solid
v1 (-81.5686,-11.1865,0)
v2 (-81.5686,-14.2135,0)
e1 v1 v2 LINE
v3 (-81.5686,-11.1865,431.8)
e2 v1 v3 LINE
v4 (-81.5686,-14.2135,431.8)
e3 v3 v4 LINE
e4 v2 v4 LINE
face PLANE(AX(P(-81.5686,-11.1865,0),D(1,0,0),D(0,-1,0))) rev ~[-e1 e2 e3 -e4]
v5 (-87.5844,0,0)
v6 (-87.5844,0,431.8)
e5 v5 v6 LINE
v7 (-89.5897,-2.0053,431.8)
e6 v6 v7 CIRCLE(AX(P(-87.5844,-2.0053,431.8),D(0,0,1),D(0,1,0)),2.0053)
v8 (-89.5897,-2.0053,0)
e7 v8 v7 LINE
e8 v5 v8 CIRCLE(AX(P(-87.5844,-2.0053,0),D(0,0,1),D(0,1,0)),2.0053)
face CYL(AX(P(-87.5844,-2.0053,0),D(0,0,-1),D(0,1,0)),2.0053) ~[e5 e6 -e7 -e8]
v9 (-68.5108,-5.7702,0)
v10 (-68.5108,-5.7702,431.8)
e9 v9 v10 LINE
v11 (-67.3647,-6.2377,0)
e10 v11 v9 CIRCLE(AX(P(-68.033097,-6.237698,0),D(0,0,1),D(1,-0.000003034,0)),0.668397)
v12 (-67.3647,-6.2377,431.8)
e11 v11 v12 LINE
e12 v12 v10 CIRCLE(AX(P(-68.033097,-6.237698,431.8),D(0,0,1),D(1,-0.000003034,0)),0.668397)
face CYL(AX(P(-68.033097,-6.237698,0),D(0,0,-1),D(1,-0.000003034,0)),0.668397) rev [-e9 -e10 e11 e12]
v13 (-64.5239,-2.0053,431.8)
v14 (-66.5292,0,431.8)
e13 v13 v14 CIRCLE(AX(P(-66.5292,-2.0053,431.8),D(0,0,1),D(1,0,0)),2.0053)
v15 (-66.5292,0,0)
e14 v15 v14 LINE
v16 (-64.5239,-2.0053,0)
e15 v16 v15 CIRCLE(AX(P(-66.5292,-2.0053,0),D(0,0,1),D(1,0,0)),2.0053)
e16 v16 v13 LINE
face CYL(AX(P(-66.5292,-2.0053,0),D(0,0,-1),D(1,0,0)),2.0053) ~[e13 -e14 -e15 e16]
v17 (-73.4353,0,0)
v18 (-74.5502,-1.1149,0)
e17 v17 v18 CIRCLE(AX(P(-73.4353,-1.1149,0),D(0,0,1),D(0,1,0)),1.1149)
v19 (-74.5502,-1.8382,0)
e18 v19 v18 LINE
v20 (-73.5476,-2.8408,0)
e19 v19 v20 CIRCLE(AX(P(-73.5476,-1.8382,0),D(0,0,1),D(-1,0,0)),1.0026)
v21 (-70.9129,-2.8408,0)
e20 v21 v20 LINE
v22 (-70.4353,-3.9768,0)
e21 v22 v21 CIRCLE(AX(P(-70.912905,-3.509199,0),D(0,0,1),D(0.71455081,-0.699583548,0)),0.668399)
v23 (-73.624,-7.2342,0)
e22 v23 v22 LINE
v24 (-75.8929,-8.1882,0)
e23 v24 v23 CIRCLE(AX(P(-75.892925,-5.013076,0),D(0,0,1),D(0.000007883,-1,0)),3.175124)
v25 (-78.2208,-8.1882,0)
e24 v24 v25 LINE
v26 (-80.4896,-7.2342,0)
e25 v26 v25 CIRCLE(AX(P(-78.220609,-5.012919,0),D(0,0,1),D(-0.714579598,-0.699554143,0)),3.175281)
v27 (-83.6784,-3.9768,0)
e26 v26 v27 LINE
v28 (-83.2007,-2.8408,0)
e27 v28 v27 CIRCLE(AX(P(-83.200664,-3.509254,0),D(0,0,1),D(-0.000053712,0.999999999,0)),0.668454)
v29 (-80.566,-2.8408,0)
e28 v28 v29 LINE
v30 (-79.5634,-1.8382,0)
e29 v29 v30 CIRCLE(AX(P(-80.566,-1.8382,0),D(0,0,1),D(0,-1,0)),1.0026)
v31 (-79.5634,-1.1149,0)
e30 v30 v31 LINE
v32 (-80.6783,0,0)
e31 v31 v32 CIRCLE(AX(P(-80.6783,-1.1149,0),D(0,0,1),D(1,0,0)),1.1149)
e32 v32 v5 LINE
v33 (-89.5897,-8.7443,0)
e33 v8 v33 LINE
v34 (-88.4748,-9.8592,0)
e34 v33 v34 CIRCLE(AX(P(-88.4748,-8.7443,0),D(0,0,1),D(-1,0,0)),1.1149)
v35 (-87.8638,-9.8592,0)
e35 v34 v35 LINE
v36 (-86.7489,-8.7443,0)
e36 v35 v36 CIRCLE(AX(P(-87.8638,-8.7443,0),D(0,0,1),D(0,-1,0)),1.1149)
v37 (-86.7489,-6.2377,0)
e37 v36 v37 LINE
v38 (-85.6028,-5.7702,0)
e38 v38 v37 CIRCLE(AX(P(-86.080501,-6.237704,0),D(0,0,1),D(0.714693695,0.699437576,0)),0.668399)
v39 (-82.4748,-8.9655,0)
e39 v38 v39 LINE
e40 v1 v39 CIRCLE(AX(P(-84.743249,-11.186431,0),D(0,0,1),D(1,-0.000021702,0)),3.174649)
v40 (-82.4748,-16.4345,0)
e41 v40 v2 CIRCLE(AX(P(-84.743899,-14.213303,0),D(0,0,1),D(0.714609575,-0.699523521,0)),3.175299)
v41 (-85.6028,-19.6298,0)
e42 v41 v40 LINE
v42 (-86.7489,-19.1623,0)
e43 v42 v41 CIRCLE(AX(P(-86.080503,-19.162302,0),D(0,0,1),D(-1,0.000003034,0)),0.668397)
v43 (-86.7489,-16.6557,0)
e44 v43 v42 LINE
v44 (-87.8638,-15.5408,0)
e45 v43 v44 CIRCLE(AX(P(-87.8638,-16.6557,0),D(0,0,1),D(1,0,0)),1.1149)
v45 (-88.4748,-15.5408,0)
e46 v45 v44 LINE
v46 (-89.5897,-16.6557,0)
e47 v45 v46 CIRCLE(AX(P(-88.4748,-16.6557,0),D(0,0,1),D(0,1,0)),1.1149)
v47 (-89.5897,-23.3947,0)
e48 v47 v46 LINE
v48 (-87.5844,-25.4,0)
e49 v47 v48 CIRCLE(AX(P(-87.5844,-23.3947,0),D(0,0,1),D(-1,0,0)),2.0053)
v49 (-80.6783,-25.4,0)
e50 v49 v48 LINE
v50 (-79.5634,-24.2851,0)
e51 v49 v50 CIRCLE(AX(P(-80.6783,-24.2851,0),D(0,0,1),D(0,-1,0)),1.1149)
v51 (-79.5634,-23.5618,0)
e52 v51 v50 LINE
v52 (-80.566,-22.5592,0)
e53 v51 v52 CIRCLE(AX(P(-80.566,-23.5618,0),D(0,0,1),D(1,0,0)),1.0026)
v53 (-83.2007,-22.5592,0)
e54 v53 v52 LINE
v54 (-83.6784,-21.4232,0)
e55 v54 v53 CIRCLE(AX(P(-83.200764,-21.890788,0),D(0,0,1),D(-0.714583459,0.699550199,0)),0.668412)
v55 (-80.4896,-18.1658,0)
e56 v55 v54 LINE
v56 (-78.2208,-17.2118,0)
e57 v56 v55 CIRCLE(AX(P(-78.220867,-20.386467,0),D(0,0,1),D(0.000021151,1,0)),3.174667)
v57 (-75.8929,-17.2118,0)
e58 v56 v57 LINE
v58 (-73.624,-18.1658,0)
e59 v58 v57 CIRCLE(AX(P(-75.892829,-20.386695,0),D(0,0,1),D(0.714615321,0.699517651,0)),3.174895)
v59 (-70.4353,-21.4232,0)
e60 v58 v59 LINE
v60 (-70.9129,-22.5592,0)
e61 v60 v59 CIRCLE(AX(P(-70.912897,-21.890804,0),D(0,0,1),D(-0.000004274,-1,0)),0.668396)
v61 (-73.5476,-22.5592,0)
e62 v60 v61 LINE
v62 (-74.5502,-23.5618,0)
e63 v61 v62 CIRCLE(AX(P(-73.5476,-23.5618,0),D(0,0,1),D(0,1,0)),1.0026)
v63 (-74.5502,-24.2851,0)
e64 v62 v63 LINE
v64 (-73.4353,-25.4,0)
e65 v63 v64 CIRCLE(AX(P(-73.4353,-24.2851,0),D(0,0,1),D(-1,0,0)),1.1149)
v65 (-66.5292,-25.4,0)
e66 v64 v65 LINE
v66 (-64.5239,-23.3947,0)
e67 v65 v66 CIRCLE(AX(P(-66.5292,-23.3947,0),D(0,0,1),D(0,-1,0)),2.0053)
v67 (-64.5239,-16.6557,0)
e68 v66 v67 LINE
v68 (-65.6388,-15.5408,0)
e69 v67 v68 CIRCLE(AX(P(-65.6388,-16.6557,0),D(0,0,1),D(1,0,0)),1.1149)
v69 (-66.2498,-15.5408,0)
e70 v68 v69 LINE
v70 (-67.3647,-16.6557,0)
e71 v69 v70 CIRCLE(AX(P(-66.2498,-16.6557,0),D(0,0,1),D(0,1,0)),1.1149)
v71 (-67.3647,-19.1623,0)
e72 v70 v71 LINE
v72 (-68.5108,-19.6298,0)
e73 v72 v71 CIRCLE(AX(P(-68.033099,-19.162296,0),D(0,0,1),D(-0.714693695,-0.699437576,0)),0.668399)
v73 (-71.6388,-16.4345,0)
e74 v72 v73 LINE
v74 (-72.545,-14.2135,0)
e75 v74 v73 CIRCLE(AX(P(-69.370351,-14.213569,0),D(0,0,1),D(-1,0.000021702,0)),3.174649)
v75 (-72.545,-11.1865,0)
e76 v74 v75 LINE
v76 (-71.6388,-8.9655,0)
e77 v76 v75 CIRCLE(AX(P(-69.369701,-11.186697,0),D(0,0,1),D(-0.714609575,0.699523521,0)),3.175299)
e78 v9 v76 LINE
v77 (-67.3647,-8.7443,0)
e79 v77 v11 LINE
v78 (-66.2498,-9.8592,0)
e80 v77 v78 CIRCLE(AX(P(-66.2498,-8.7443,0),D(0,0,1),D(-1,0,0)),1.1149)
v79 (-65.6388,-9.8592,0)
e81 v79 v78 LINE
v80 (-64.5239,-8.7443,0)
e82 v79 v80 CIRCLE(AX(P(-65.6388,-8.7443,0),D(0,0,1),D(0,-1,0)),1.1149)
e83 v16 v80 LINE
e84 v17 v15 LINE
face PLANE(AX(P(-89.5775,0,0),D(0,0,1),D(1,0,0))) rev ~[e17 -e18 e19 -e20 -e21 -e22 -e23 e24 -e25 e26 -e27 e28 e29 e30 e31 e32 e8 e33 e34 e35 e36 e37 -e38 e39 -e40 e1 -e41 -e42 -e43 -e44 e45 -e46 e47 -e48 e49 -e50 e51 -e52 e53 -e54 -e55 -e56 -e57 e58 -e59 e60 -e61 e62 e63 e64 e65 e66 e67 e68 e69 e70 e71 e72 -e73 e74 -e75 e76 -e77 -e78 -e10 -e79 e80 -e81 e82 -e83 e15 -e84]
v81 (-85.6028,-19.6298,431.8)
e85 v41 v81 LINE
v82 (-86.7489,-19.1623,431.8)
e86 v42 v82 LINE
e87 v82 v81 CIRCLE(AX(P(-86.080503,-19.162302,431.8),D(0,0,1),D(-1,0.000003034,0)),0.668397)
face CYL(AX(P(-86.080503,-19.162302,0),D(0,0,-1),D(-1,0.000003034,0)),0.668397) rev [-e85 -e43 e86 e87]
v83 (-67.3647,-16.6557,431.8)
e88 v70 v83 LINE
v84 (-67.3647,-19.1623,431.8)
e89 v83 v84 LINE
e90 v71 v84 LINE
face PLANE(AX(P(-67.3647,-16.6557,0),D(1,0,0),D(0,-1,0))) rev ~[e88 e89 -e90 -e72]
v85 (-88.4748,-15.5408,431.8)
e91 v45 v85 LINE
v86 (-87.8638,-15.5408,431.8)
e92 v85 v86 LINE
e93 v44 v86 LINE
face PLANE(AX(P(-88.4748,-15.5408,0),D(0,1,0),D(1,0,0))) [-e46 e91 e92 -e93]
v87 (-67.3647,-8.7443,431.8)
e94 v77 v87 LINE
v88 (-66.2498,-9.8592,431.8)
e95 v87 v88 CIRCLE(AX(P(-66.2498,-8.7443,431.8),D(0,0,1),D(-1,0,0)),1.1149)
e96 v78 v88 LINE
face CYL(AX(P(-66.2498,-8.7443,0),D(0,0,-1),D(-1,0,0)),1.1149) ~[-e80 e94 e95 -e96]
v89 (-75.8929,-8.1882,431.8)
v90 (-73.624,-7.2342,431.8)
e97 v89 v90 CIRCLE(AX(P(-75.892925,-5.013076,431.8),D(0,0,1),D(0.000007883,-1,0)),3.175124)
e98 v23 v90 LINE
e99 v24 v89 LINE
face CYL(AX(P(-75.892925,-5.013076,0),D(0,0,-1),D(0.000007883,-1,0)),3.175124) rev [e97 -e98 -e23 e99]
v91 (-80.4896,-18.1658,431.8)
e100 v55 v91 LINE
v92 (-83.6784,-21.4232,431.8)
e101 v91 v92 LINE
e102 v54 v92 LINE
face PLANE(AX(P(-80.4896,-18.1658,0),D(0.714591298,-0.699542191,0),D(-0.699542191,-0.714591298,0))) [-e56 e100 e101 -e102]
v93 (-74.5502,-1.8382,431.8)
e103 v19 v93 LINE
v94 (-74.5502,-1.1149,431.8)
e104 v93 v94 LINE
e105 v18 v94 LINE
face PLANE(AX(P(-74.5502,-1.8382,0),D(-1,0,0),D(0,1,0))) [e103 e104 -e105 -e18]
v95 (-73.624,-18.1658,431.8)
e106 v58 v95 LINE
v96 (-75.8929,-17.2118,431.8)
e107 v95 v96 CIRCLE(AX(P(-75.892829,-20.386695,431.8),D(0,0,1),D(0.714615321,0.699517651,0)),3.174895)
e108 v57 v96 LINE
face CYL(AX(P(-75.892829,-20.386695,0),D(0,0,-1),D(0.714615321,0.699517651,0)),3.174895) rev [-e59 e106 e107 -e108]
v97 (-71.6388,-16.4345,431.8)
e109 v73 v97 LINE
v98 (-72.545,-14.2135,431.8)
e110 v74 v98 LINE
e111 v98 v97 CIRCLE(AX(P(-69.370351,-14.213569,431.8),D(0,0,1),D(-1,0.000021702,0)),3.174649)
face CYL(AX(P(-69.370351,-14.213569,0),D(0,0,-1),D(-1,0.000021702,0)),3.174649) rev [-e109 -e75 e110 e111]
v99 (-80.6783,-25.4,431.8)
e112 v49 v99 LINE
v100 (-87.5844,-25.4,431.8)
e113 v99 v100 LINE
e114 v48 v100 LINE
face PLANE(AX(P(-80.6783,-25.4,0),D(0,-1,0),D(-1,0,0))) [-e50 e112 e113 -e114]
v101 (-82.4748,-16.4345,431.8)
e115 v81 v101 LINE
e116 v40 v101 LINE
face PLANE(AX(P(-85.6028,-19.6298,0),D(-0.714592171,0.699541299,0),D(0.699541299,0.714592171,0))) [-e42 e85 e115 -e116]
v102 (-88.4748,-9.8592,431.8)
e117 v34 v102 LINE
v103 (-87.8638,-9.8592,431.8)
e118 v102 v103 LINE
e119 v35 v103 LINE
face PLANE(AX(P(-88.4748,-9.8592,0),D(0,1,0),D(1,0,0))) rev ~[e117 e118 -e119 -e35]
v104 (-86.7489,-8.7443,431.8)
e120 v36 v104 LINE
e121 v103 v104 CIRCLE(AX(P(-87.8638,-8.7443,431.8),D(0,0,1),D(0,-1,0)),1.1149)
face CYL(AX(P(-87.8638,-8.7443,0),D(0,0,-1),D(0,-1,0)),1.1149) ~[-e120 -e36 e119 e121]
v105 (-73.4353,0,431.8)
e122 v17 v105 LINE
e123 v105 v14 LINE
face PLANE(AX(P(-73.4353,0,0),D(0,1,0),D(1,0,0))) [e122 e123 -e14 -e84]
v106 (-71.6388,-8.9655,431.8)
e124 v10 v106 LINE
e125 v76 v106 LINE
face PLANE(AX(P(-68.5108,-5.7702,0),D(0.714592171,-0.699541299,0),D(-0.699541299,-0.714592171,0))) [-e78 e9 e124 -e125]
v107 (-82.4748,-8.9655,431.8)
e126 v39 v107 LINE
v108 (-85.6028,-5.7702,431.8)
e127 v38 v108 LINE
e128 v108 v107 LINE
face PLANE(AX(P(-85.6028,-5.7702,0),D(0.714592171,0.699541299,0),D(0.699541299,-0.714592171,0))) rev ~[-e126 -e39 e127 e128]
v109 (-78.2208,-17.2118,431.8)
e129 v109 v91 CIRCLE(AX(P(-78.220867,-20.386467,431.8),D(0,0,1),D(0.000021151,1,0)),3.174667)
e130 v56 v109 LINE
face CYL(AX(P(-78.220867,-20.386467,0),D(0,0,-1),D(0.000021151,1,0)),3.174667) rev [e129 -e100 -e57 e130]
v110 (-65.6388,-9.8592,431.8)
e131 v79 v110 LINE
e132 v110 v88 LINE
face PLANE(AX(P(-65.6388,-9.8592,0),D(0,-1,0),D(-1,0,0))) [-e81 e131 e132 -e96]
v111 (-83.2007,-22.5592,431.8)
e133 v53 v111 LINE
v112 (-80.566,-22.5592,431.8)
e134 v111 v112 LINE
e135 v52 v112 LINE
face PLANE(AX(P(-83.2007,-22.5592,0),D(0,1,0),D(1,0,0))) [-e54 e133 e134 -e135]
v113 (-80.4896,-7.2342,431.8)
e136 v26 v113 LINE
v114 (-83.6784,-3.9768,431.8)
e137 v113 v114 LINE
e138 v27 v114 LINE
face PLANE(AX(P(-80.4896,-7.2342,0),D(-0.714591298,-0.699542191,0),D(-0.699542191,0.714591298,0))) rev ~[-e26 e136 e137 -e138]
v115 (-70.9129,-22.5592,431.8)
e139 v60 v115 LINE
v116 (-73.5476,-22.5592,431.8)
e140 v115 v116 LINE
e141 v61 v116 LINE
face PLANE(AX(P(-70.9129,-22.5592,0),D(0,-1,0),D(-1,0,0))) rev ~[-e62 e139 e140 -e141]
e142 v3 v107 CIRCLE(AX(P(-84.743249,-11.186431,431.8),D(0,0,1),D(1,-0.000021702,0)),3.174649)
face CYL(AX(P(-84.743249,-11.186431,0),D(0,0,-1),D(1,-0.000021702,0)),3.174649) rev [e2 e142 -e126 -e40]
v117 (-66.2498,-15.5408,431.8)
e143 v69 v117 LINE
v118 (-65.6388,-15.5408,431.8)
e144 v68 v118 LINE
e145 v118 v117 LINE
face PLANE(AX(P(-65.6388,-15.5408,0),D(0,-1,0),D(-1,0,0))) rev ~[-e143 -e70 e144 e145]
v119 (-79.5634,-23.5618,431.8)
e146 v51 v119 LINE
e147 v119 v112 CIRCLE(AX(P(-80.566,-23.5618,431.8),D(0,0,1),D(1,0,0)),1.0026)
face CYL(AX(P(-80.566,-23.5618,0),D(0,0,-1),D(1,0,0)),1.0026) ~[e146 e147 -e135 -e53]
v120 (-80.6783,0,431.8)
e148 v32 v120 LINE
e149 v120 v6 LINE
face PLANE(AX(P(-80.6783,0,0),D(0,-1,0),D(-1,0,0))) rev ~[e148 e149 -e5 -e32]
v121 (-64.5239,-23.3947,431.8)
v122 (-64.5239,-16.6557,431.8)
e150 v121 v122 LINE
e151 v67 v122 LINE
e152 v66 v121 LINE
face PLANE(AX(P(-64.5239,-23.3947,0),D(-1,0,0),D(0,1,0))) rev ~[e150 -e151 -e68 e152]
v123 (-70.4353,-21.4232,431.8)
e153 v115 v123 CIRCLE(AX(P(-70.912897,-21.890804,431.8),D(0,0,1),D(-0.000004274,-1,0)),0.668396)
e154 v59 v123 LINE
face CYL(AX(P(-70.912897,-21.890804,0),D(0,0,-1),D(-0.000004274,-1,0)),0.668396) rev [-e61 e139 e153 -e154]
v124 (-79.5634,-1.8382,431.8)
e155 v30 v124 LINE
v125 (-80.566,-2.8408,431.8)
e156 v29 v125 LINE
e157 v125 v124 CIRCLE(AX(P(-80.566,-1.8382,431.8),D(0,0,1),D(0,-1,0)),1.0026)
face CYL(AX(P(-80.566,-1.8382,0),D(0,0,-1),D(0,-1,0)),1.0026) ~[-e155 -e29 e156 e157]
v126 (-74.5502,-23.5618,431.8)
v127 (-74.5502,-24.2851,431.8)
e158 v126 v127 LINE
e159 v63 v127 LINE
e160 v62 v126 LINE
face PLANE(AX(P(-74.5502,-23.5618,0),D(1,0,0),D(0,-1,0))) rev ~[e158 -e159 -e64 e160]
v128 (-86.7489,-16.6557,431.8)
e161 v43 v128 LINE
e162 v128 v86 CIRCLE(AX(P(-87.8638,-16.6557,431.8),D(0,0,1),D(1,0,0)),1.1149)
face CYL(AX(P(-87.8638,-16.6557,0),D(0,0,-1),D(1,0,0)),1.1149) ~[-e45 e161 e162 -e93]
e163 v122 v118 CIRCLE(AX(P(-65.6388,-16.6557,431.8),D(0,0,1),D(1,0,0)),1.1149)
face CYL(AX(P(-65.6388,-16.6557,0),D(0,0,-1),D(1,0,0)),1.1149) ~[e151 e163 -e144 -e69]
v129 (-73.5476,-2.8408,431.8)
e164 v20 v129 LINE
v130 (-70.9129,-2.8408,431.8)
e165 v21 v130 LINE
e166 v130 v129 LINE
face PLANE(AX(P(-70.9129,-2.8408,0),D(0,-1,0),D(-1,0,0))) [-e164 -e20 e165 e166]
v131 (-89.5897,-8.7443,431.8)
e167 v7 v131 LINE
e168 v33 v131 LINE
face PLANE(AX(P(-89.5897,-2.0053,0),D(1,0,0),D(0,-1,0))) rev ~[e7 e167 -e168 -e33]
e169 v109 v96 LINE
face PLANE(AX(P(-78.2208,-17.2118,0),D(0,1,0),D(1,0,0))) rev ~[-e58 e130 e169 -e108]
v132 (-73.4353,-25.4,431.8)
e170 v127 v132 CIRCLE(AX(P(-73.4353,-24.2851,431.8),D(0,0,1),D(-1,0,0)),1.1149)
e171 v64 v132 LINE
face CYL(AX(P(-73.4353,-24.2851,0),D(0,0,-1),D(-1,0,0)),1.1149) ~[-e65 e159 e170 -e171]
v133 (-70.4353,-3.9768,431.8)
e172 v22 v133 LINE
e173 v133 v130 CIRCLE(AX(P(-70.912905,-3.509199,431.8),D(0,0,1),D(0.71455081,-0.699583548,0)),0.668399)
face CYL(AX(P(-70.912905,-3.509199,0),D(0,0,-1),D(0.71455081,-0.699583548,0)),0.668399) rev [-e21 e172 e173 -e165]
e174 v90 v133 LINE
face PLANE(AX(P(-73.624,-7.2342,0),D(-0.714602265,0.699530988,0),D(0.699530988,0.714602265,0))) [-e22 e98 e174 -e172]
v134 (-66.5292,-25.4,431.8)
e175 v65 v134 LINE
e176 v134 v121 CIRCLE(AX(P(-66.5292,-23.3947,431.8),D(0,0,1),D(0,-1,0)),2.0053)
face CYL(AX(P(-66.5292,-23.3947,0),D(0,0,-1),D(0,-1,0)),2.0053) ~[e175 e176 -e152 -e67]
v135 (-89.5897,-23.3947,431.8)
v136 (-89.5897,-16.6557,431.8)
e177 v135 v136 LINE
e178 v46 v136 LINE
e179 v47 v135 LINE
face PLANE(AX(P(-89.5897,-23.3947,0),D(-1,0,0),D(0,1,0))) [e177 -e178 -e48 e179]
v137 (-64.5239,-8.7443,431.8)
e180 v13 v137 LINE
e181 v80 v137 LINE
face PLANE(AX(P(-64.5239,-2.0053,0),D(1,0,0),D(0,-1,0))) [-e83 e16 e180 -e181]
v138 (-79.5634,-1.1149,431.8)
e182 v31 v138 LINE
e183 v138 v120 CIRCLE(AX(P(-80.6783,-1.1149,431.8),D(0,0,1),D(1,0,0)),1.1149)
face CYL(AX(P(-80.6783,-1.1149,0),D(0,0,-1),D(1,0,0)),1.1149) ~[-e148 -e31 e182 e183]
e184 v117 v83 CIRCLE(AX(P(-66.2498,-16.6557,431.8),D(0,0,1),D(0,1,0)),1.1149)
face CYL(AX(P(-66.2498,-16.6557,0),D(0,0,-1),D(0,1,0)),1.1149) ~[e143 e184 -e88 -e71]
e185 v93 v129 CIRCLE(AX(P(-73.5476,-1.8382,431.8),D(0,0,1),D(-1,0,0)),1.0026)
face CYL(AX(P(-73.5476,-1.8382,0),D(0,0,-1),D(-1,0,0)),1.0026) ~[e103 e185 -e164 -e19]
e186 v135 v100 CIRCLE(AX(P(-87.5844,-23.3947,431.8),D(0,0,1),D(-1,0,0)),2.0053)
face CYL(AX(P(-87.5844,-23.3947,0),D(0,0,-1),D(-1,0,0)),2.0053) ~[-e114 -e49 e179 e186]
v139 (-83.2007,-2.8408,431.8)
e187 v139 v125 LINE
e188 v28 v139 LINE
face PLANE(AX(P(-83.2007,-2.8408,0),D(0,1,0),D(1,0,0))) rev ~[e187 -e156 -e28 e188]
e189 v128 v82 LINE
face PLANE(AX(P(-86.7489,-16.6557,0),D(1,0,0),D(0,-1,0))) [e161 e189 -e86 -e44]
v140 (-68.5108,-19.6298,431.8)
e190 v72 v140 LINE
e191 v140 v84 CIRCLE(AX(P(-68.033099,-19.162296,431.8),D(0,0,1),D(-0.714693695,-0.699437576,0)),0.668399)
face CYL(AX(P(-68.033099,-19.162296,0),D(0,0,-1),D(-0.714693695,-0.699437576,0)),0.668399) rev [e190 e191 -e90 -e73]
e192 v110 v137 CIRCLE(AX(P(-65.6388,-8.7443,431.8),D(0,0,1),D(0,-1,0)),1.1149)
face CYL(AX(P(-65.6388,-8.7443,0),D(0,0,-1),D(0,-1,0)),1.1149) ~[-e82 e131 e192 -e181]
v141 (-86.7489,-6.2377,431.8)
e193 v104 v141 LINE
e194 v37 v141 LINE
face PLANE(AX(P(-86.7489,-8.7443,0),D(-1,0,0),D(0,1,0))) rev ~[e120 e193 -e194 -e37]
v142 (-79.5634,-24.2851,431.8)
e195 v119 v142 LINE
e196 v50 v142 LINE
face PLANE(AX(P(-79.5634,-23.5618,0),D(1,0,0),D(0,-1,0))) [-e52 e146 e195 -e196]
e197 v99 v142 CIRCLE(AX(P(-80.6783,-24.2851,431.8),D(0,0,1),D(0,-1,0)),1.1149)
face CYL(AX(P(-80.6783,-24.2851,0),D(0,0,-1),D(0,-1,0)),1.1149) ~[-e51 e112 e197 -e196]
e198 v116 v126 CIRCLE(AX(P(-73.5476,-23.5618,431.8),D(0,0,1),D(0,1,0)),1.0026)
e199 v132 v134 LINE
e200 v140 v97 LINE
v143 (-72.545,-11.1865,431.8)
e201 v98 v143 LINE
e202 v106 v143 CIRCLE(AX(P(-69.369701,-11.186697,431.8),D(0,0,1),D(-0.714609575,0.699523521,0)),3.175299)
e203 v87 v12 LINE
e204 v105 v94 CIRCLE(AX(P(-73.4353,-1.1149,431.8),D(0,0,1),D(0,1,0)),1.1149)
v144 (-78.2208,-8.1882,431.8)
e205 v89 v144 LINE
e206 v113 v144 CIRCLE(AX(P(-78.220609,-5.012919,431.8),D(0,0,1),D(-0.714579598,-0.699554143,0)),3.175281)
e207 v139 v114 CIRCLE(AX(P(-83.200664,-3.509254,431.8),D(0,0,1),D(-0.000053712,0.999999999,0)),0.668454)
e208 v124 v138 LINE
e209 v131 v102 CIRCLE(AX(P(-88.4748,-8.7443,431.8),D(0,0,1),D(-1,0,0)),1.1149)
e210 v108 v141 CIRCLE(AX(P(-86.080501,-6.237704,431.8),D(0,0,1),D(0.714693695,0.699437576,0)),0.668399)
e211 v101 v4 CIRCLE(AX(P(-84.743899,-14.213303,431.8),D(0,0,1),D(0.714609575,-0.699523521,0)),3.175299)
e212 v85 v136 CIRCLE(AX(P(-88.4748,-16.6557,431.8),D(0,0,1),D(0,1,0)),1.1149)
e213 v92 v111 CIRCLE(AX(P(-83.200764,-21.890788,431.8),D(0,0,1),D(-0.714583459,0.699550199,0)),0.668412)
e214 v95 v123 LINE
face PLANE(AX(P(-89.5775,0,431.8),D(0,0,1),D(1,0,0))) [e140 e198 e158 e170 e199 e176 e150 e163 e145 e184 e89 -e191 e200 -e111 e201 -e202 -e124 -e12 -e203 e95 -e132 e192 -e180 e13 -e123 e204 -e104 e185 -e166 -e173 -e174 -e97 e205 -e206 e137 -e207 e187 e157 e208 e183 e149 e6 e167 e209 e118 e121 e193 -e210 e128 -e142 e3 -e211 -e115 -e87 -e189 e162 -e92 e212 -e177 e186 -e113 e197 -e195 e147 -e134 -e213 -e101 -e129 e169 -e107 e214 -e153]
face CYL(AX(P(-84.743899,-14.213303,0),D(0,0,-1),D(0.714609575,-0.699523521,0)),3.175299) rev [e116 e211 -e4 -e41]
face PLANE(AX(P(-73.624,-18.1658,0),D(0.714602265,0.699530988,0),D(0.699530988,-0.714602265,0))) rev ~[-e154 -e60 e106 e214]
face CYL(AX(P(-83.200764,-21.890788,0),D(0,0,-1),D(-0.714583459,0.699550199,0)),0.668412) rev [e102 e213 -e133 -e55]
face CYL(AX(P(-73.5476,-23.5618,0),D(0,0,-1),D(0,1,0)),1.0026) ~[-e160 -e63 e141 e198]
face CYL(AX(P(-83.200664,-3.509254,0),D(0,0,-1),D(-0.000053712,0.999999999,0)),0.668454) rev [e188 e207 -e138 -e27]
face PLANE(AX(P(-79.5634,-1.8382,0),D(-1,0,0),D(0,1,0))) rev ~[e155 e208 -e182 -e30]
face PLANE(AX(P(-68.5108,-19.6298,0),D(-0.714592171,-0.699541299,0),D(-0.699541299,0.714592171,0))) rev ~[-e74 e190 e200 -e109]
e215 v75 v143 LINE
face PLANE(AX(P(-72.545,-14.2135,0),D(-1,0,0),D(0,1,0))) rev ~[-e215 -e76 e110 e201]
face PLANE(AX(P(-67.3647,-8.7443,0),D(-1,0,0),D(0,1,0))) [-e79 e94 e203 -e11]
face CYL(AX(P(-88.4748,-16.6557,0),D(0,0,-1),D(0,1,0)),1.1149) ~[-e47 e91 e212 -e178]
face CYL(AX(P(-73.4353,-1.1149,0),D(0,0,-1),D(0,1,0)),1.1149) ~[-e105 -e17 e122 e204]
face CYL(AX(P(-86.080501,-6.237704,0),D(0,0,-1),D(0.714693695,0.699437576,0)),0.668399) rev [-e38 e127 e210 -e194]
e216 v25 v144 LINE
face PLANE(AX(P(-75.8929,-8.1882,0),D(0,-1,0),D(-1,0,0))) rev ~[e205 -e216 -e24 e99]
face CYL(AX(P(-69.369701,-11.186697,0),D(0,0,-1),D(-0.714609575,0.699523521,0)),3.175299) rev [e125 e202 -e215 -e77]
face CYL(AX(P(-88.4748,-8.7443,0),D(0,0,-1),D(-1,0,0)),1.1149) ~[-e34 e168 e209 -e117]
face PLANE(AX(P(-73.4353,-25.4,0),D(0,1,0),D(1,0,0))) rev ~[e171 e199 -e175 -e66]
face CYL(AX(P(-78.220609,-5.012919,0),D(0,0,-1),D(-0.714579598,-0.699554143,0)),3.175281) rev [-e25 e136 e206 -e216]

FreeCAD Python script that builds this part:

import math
import FreeCAD as App
import Part
import Sketcher
Q = App.Units.Quantity

doc = App.newDocument("Part")
body = doc.addObject("PartDesign::Body", "Body")

# Sketch on XY plane
sketch1 = doc.addObject("Sketcher::SketchObject", "Sketch")
body.addObject(sketch1)
sketch1.AttachmentSupport = (doc.XY_Plane, [""])
sketch1.MapMode = "FlatFace"
sketch1.addGeometry(Part.ArcOfCircle(Part.Circle(App.Vector(-70.9, -3.5, 0), App.Vector(0, 0, 1), 0.7), math.radians(-44), math.radians(90)), False)
sketch1.addGeometry(Part.LineSegment(App.Vector(-70.4, -4, 0), App.Vector(-73.6, -7.2, 0)), False)
sketch1.addGeometry(Part.ArcOfCircle(Part.Circle(App.Vector(-75.9, -5, 0), App.Vector(0, 0, 1), 3.2), math.radians(-90), math.radians(-44)), False)
sketch1.addGeometry(Part.LineSegment(App.Vector(-75.9, -8.2, 0), App.Vector(-78.2, -8.2, 0)), False)
sketch1.addGeometry(Part.ArcOfCircle(Part.Circle(App.Vector(-78.2, -5, 0), App.Vector(0, 0, 1), 3.2), math.radians(-136), math.radians(-90)), False)
sketch1.addGeometry(Part.LineSegment(App.Vector(-80.5, -7.2, 0), App.Vector(-83.7, -4, 0)), False)
sketch1.addGeometry(Part.ArcOfCircle(Part.Circle(App.Vector(-83.2, -3.5, 0), App.Vector(0, 0, 1), 0.7), math.radians(90), math.radians(224)), False)
sketch1.addGeometry(Part.LineSegment(App.Vector(-83.2, -2.8, 0), App.Vector(-80.6, -2.8, 0)), False)
sketch1.addGeometry(Part.ArcOfCircle(Part.Circle(App.Vector(-80.6, -1.8, 0), App.Vector(0, 0, 1), 1), math.radians(-90), math.radians(0)), False)
sketch1.addGeometry(Part.LineSegment(App.Vector(-79.6, -1.8, 0), App.Vector(-79.6, -1.1, 0)), False)
sketch1.addGeometry(Part.ArcOfCircle(Part.Circle(App.Vector(-80.7, -1.1, 0), App.Vector(0, 0, 1), 1.1), math.radians(0), math.radians(90)), False)
sketch1.addGeometry(Part.LineSegment(App.Vector(-80.7, 0, 0), App.Vector(-87.6, 0, 0)), False)
sketch1.addGeometry(Part.ArcOfCircle(Part.Circle(App.Vector(-87.6, -2, 0), App.Vector(0, 0, 1), 2), math.radians(90), math.radians(180)), False)
sketch1.addGeometry(Part.LineSegment(App.Vector(-89.6, -2, 0), App.Vector(-89.6, -8.7, 0)), False)
sketch1.addGeometry(Part.ArcOfCircle(Part.Circle(App.Vector(-88.5, -8.7, 0), App.Vector(0, 0, 1), 1.1), math.radians(180), math.radians(270)), False)
sketch1.addGeometry(Part.LineSegment(App.Vector(-88.5, -9.9, 0), App.Vector(-87.9, -9.9, 0)), False)
sketch1.addGeometry(Part.ArcOfCircle(Part.Circle(App.Vector(-87.9, -8.7, 0), App.Vector(0, 0, 1), 1.1), math.radians(-90), math.radians(0)), False)
sketch1.addGeometry(Part.LineSegment(App.Vector(-86.7, -8.7, 0), App.Vector(-86.7, -6.2, 0)), False)
sketch1.addGeometry(Part.ArcOfCircle(Part.Circle(App.Vector(-86.1, -6.2, 0), App.Vector(0, 0, 1), 0.7), math.radians(44), math.radians(180)), False)
sketch1.addGeometry(Part.LineSegment(App.Vector(-85.6, -5.8, 0), App.Vector(-82.5, -9, 0)), False)
sketch1.addGeometry(Part.ArcOfCircle(Part.Circle(App.Vector(-84.7, -11.2, 0), App.Vector(0, 0, 1), 3.2), math.radians(0), math.radians(44)), False)
sketch1.addGeometry(Part.LineSegment(App.Vector(-81.6, -11.2, 0), App.Vector(-81.6, -14.2, 0)), False)
sketch1.addGeometry(Part.ArcOfCircle(Part.Circle(App.Vector(-84.7, -14.2, 0), App.Vector(0, 0, 1), 3.2), math.radians(-44), math.radians(0)), False)
sketch1.addGeometry(Part.LineSegment(App.Vector(-82.5, -16.4, 0), App.Vector(-85.6, -19.6, 0)), False)
sketch1.addGeometry(Part.ArcOfCircle(Part.Circle(App.Vector(-86.1, -19.2, 0), App.Vector(0, 0, 1), 0.7), math.radians(180), math.radians(316)), False)
sketch1.addGeometry(Part.LineSegment(App.Vector(-86.7, -19.2, 0), App.Vector(-86.7, -16.7, 0)), False)
sketch1.addGeometry(Part.ArcOfCircle(Part.Circle(App.Vector(-87.9, -16.7, 0), App.Vector(0, 0, 1), 1.1), math.radians(0), math.radians(90)), False)
sketch1.addGeometry(Part.LineSegment(App.Vector(-87.9, -15.5, 0), App.Vector(-88.5, -15.5, 0)), False)
sketch1.addGeometry(Part.ArcOfCircle(Part.Circle(App.Vector(-88.5, -16.7, 0), App.Vector(0, 0, 1), 1.1), math.radians(90), math.radians(180)), False)
sketch1.addGeometry(Part.LineSegment(App.Vector(-89.6, -16.7, 0), App.Vector(-89.6, -23.4, 0)), False)
sketch1.addGeometry(Part.ArcOfCircle(Part.Circle(App.Vector(-87.6, -23.4, 0), App.Vector(0, 0, 1), 2), math.radians(180), math.radians(270)), False)
sketch1.addGeometry(Part.LineSegment(App.Vector(-87.6, -25.4, 0), App.Vector(-80.7, -25.4, 0)), False)
sketch1.addGeometry(Part.ArcOfCircle(Part.Circle(App.Vector(-80.7, -24.3, 0), App.Vector(0, 0, 1), 1.1), math.radians(-90), math.radians(0)), False)
sketch1.addGeometry(Part.LineSegment(App.Vector(-79.6, -24.3, 0), App.Vector(-79.6, -23.6, 0)), False)
sketch1.addGeometry(Part.ArcOfCircle(Part.Circle(App.Vector(-80.6, -23.6, 0), App.Vector(0, 0, 1), 1), math.radians(0), math.radians(90)), False)
sketch1.addGeometry(Part.LineSegment(App.Vector(-80.6, -22.6, 0), App.Vector(-83.2, -22.6, 0)), False)
sketch1.addGeometry(Part.ArcOfCircle(Part.Circle(App.Vector(-83.2, -21.9, 0), App.Vector(0, 0, 1), 0.7), math.radians(136), math.radians(270)), False)
sketch1.addGeometry(Part.LineSegment(App.Vector(-83.7, -21.4, 0), App.Vector(-80.5, -18.2, 0)), False)
sketch1.addGeometry(Part.ArcOfCircle(Part.Circle(App.Vector(-78.2, -20.4, 0), App.Vector(0, 0, 1), 3.2), math.radians(90), math.radians(136)), False)
sketch1.addGeometry(Part.LineSegment(App.Vector(-78.2, -17.2, 0), App.Vector(-75.9, -17.2, 0)), False)
sketch1.addGeometry(Part.ArcOfCircle(Part.Circle(App.Vector(-75.9, -20.4, 0), App.Vector(0, 0, 1), 3.2), math.radians(44), math.radians(90)), False)
sketch1.addGeometry(Part.LineSegment(App.Vector(-73.6, -18.2, 0), App.Vector(-70.4, -21.4, 0)), False)
sketch1.addGeometry(Part.ArcOfCircle(Part.Circle(App.Vector(-70.9, -21.9, 0), App.Vector(0, 0, 1), 0.7), math.radians(-90), math.radians(44)), False)
sketch1.addGeometry(Part.LineSegment(App.Vector(-70.9, -22.6, 0), App.Vector(-73.5, -22.6, 0)), False)
sketch1.addGeometry(Part.ArcOfCircle(Part.Circle(App.Vector(-73.5, -23.6, 0), App.Vector(0, 0, 1), 1), math.radians(90), math.radians(180)), False)
sketch1.addGeometry(Part.LineSegment(App.Vector(-74.6, -23.6, 0), App.Vector(-74.6, -24.3, 0)), False)
sketch1.addGeometry(Part.ArcOfCircle(Part.Circle(App.Vector(-73.4, -24.3, 0), App.Vector(0, 0, 1), 1.1), math.radians(180), math.radians(270)), False)
sketch1.addGeometry(Part.LineSegment(App.Vector(-73.4, -25.4, 0), App.Vector(-66.5, -25.4, 0)), False)
sketch1.addGeometry(Part.ArcOfCircle(Part.Circle(App.Vector(-66.5, -23.4, 0), App.Vector(0, 0, 1), 2), math.radians(-90), math.radians(0)), False)
sketch1.addGeometry(Part.LineSegment(App.Vector(-64.5, -23.4, 0), App.Vector(-64.5, -16.7, 0)), False)
sketch1.addGeometry(Part.ArcOfCircle(Part.Circle(App.Vector(-65.6, -16.7, 0), App.Vector(0, 0, 1), 1.1), math.radians(0), math.radians(90)), False)
sketch1.addGeometry(Part.LineSegment(App.Vector(-65.6, -15.5, 0), App.Vector(-66.2, -15.5, 0)), False)
sketch1.addGeometry(Part.ArcOfCircle(Part.Circle(App.Vector(-66.2, -16.7, 0), App.Vector(0, 0, 1), 1.1), math.radians(90), math.radians(180)), False)
sketch1.addGeometry(Part.LineSegment(App.Vector(-67.4, -16.7, 0), App.Vector(-67.4, -19.2, 0)), False)
sketch1.addGeometry(Part.ArcOfCircle(Part.Circle(App.Vector(-68, -19.2, 0), App.Vector(0, 0, 1), 0.7), math.radians(-136), math.radians(0)), False)
sketch1.addGeometry(Part.LineSegment(App.Vector(-68.5, -19.6, 0), App.Vector(-71.6, -16.4, 0)), False)
sketch1.addGeometry(Part.ArcOfCircle(Part.Circle(App.Vector(-69.4, -14.2, 0), App.Vector(0, 0, 1), 3.2), math.radians(180), math.radians(224)), False)
sketch1.addGeometry(Part.LineSegment(App.Vector(-72.5, -14.2, 0), App.Vector(-72.5, -11.2, 0)), False)
sketch1.addGeometry(Part.ArcOfCircle(Part.Circle(App.Vector(-69.4, -11.2, 0), App.Vector(0, 0, 1), 3.2), math.radians(136), math.radians(180)), False)
sketch1.addGeometry(Part.LineSegment(App.Vector(-71.6, -9, 0), App.Vector(-68.5, -5.8, 0)), False)
sketch1.addGeometry(Part.ArcOfCircle(Part.Circle(App.Vector(-68, -6.2, 0), App.Vector(0, 0, 1), 0.7), math.radians(0), math.radians(136)), False)
sketch1.addGeometry(Part.LineSegment(App.Vector(-67.4, -6.2, 0), App.Vector(-67.4, -8.7, 0)), False)
sketch1.addGeometry(Part.ArcOfCircle(Part.Circle(App.Vector(-66.2, -8.7, 0), App.Vector(0, 0, 1), 1.1), math.radians(180), math.radians(270)), False)
sketch1.addGeometry(Part.LineSegment(App.Vector(-66.2, -9.9, 0), App.Vector(-65.6, -9.9, 0)), False)
sketch1.addGeometry(Part.ArcOfCircle(Part.Circle(App.Vector(-65.6, -8.7, 0), App.Vector(0, 0, 1), 1.1), math.radians(-90), math.radians(0)), False)
sketch1.addGeometry(Part.LineSegment(App.Vector(-64.5, -8.7, 0), App.Vector(-64.5, -2, 0)), False)
sketch1.addGeometry(Part.ArcOfCircle(Part.Circle(App.Vector(-66.5, -2, 0), App.Vector(0, 0, 1), 2), math.radians(0), math.radians(90)), False)
sketch1.addGeometry(Part.LineSegment(App.Vector(-66.5, 0, 0), App.Vector(-73.4, 0, 0)), False)
sketch1.addGeometry(Part.ArcOfCircle(Part.Circle(App.Vector(-73.4, -1.1, 0), App.Vector(0, 0, 1), 1.1), math.radians(90), math.radians(180)), False)
sketch1.addGeometry(Part.LineSegment(App.Vector(-74.6, -1.1, 0), App.Vector(-74.6, -1.8, 0)), False)
sketch1.addGeometry(Part.ArcOfCircle(Part.Circle(App.Vector(-73.5, -1.8, 0), App.Vector(0, 0, 1), 1), math.radians(180), math.radians(270)), False)
sketch1.addGeometry(Part.LineSegment(App.Vector(-73.5, -2.8, 0), App.Vector(-70.9, -2.8, 0)), False)
sketch1.addConstraint(Sketcher.Constraint("Tangent", 0, 1, 1, 1))
sketch1.addConstraint(Sketcher.Constraint("Tangent", 1, 2, 2, 2))
sketch1.addConstraint(Sketcher.Constraint("Tangent", 2, 1, 3, 1))
sketch1.addConstraint(Sketcher.Constraint("Tangent", 3, 2, 4, 2))
sketch1.addConstraint(Sketcher.Constraint("Tangent", 4, 1, 5, 1))
sketch1.addConstraint(Sketcher.Constraint("Tangent", 5, 2, 6, 2))
sketch1.addConstraint(Sketcher.Constraint("Tangent", 6, 1, 7, 1))
sketch1.addConstraint(Sketcher.Constraint("Tangent", 7, 2, 8, 1))
sketch1.addConstraint(Sketcher.Constraint("Tangent", 8, 2, 9, 1))
sketch1.addConstraint(Sketcher.Constraint("Tangent", 9, 2, 10, 1))
sketch1.addConstraint(Sketcher.Constraint("Tangent", 10, 2, 11, 1))
sketch1.addConstraint(Sketcher.Constraint("Tangent", 11, 2, 12, 1))
sketch1.addConstraint(Sketcher.Constraint("Tangent", 12, 2, 13, 1))
sketch1.addConstraint(Sketcher.Constraint("Tangent", 13, 2, 14, 1))
sketch1.addConstraint(Sketcher.Constraint("Tangent", 14, 2, 15, 1))
sketch1.addConstraint(Sketcher.Constraint("Tangent", 15, 2, 16, 1))
sketch1.addConstraint(Sketcher.Constraint("Tangent", 16, 2, 17, 1))
sketch1.addConstraint(Sketcher.Constraint("Tangent", 17, 2, 18, 2))
sketch1.addConstraint(Sketcher.Constraint("Tangent", 18, 1, 19, 1))
sketch1.addConstraint(Sketcher.Constraint("Tangent", 19, 2, 20, 2))
sketch1.addConstraint(Sketcher.Constraint("Tangent", 20, 1, 21, 1))
sketch1.addConstraint(Sketcher.Constraint("Tangent", 21, 2, 22, 2))
sketch1.addConstraint(Sketcher.Constraint("Tangent", 22, 1, 23, 1))
sketch1.addConstraint(Sketcher.Constraint("Tangent", 23, 2, 24, 2))
sketch1.addConstraint(Sketcher.Constraint("Tangent", 24, 1, 25, 1))
sketch1.addConstraint(Sketcher.Constraint("Tangent", 25, 2, 26, 1))
sketch1.addConstraint(Sketcher.Constraint("Tangent", 26, 2, 27, 1))
sketch1.addConstraint(Sketcher.Constraint("Tangent", 27, 2, 28, 1))
sketch1.addConstraint(Sketcher.Constraint("Tangent", 28, 2, 29, 1))
sketch1.addConstraint(Sketcher.Constraint("Tangent", 29, 2, 30, 1))
sketch1.addConstraint(Sketcher.Constraint("Tangent", 30, 2, 31, 1))
sketch1.addConstraint(Sketcher.Constraint("Tangent", 31, 2, 32, 1))
sketch1.addConstraint(Sketcher.Constraint("Tangent", 32, 2, 33, 1))
sketch1.addConstraint(Sketcher.Constraint("Tangent", 33, 2, 34, 1))
sketch1.addConstraint(Sketcher.Constraint("Tangent", 34, 2, 35, 1))
sketch1.addConstraint(Sketcher.Constraint("Tangent", 35, 2, 36, 2))
sketch1.addConstraint(Sketcher.Constraint("Tangent", 36, 1, 37, 1))
sketch1.addConstraint(Sketcher.Constraint("Tangent", 37, 2, 38, 2))
sketch1.addConstraint(Sketcher.Constraint("Tangent", 38, 1, 39, 1))
sketch1.addConstraint(Sketcher.Constraint("Tangent", 39, 2, 40, 2))
sketch1.addConstraint(Sketcher.Constraint("Tangent", 40, 1, 41, 1))
sketch1.addConstraint(Sketcher.Constraint("Tangent", 41, 2, 42, 2))
sketch1.addConstraint(Sketcher.Constraint("Tangent", 42, 1, 43, 1))
sketch1.addConstraint(Sketcher.Constraint("Tangent", 43, 2, 44, 1))
sketch1.addConstraint(Sketcher.Constraint("Tangent", 44, 2, 45, 1))
sketch1.addConstraint(Sketcher.Constraint("Tangent", 45, 2, 46, 1))
sketch1.addConstraint(Sketcher.Constraint("Tangent", 46, 2, 47, 1))
sketch1.addConstraint(Sketcher.Constraint("Tangent", 47, 2, 48, 1))
sketch1.addConstraint(Sketcher.Constraint("Tangent", 48, 2, 49, 1))
sketch1.addConstraint(Sketcher.Constraint("Tangent", 49, 2, 50, 1))
sketch1.addConstraint(Sketcher.Constraint("Tangent", 50, 2, 51, 1))
sketch1.addConstraint(Sketcher.Constraint("Tangent", 51, 2, 52, 1))
sketch1.addConstraint(Sketcher.Constraint("Tangent", 52, 2, 53, 1))
sketch1.addConstraint(Sketcher.Constraint("Tangent", 53, 2, 54, 2))
sketch1.addConstraint(Sketcher.Constraint("Tangent", 54, 1, 55, 1))
sketch1.addConstraint(Sketcher.Constraint("Tangent", 55, 2, 56, 2))
sketch1.addConstraint(Sketcher.Constraint("Tangent", 56, 1, 57, 1))
sketch1.addConstraint(Sketcher.Constraint("Tangent", 57, 2, 58, 2))
sketch1.addConstraint(Sketcher.Constraint("Tangent", 58, 1, 59, 1))
sketch1.addConstraint(Sketcher.Constraint("Tangent", 59, 2, 60, 2))
sketch1.addConstraint(Sketcher.Constraint("Tangent", 60, 1, 61, 1))
sketch1.addConstraint(Sketcher.Constraint("Tangent", 61, 2, 62, 1))
sketch1.addConstraint(Sketcher.Constraint("Tangent", 62, 2, 63, 1))
sketch1.addConstraint(Sketcher.Constraint("Tangent", 63, 2, 64, 1))
sketch1.addConstraint(Sketcher.Constraint("Tangent", 64, 2, 65, 1))
sketch1.addConstraint(Sketcher.Constraint("Tangent", 65, 2, 66, 1))
sketch1.addConstraint(Sketcher.Constraint("Tangent", 66, 2, 67, 1))
sketch1.addConstraint(Sketcher.Constraint("Tangent", 67, 2, 68, 1))
sketch1.addConstraint(Sketcher.Constraint("Tangent", 68, 2, 69, 1))
sketch1.addConstraint(Sketcher.Constraint("Tangent", 69, 2, 70, 1))
sketch1.addConstraint(Sketcher.Constraint("Tangent", 70, 2, 71, 1))
sketch1.addConstraint(Sketcher.Constraint("Tangent", 71, 2, 0, 2))
sketch1.addConstraint(Sketcher.Constraint("Horizontal", 3))
sketch1.addConstraint(Sketcher.Constraint("Horizontal", 7))
sketch1.addConstraint(Sketcher.Constraint("Vertical", 9))
sketch1.addConstraint(Sketcher.Constraint("Horizontal", 11))
sketch1.addConstraint(Sketcher.Constraint("Vertical", 13))
sketch1.addConstraint(Sketcher.Constraint("Horizontal", 15))
sketch1.addConstraint(Sketcher.Constraint("Vertical", 17))
sketch1.addConstraint(Sketcher.Constraint("Vertical", 21))
sketch1.addConstraint(Sketcher.Constraint("Vertical", 25))
sketch1.addConstraint(Sketcher.Constraint("Horizontal", 27))
sketch1.addConstraint(Sketcher.Constraint("Vertical", 29))
sketch1.addConstraint(Sketcher.Constraint("Horizontal", 31))
sketch1.addConstraint(Sketcher.Constraint("Vertical", 33))
sketch1.addConstraint(Sketcher.Constraint("Horizontal", 35))
sketch1.addConstraint(Sketcher.Constraint("Horizontal", 39))
sketch1.addConstraint(Sketcher.Constraint("Horizontal", 43))
sketch1.addConstraint(Sketcher.Constraint("Vertical", 45))
sketch1.addConstraint(Sketcher.Constraint("Horizontal", 47))
sketch1.addConstraint(Sketcher.Constraint("Vertical", 49))
sketch1.addConstraint(Sketcher.Constraint("Horizontal", 51))
sketch1.addConstraint(Sketcher.Constraint("Vertical", 53))
sketch1.addConstraint(Sketcher.Constraint("Vertical", 57))
sketch1.addConstraint(Sketcher.Constraint("Vertical", 61))
sketch1.addConstraint(Sketcher.Constraint("Horizontal", 63))
sketch1.addConstraint(Sketcher.Constraint("Vertical", 65))
sketch1.addConstraint(Sketcher.Constraint("Horizontal", 67))
sketch1.addConstraint(Sketcher.Constraint("Vertical", 69))
sketch1.addConstraint(Sketcher.Constraint("Horizontal", 71))
sketch1.addConstraint(Sketcher.Constraint("Equal", 2, 4))
sketch1.addConstraint(Sketcher.Constraint("Equal", 0, 6))
sketch1.addConstraint(Sketcher.Constraint("Equal", 10, 14))
sketch1.addConstraint(Sketcher.Constraint("Equal", 14, 16))
sketch1.addConstraint(Sketcher.Constraint("Equal", 6, 18))
sketch1.addConstraint(Sketcher.Constraint("Equal", 4, 20))
sketch1.addConstraint(Sketcher.Constraint("Equal", 20, 22))
sketch1.addConstraint(Sketcher.Constraint("Equal", 18, 24))
sketch1.addConstraint(Sketcher.Constraint("Equal", 16, 26))
sketch1.addConstraint(Sketcher.Constraint("Equal", 26, 28))
sketch1.addConstraint(Sketcher.Constraint("Equal", 12, 30))
sketch1.addConstraint(Sketcher.Constraint("Equal", 28, 32))
sketch1.addConstraint(Sketcher.Constraint("Equal", 8, 34))
sketch1.addConstraint(Sketcher.Constraint("Equal", 24, 36))
sketch1.addConstraint(Sketcher.Constraint("Equal", 22, 38))
sketch1.addConstraint(Sketcher.Constraint("Equal", 38, 40))
sketch1.addConstraint(Sketcher.Constraint("Equal", 36, 42))
sketch1.addConstraint(Sketcher.Constraint("Equal", 34, 44))
sketch1.addConstraint(Sketcher.Constraint("Equal", 32, 46))
sketch1.addConstraint(Sketcher.Constraint("Equal", 30, 48))
sketch1.addConstraint(Sketcher.Constraint("Equal", 46, 50))
sketch1.addConstraint(Sketcher.Constraint("Equal", 50, 52))
sketch1.addConstraint(Sketcher.Constraint("Equal", 42, 54))
sketch1.addConstraint(Sketcher.Constraint("Equal", 40, 56))
sketch1.addConstraint(Sketcher.Constraint("Equal", 56, 58))
sketch1.addConstraint(Sketcher.Constraint("Equal", 54, 60))
sketch1.addConstraint(Sketcher.Constraint("Equal", 52, 62))
sketch1.addConstraint(Sketcher.Constraint("Equal", 62, 64))
sketch1.addConstraint(Sketcher.Constraint("Equal", 48, 66))
sketch1.addConstraint(Sketcher.Constraint("Equal", 64, 68))
sketch1.addConstraint(Sketcher.Constraint("Equal", 44, 70))
sketch1.addConstraint(Sketcher.Constraint("PointOnObject", 10, 2, -1))
sketch1.addConstraint(Sketcher.Constraint("PointOnObject", 66, 2, -1))
sketch1.addConstraint(Sketcher.Constraint("Parallel", 5, 19))
sketch1.addConstraint(Sketcher.Constraint("Parallel", 1, 23))
sketch1.addConstraint(Sketcher.Constraint("Parallel", 23, 37))
sketch1.addConstraint(Sketcher.Constraint("Parallel", 19, 41))
sketch1.addConstraint(Sketcher.Constraint("Parallel", 41, 55))
sketch1.addConstraint(Sketcher.Constraint("Parallel", 37, 59))
sketch1.addConstraint(Sketcher.Constraint("Horizontal", 0, 3, 6, 3))
sketch1.addConstraint(Sketcher.Constraint("Horizontal", 36, 3, 42, 3))
sketch1.addConstraint(Sketcher.Constraint("Horizontal", 32, 3, 46, 3))
sketch1.addConstraint(Sketcher.Constraint("Horizontal", 28, 3, 50, 3))
sketch1.addConstraint(Sketcher.Constraint("Horizontal", 24, 3, 54, 3))
sketch1.addConstraint(Sketcher.Constraint("Horizontal", 22, 3, 56, 3))
sketch1.addConstraint(Sketcher.Constraint("Horizontal", 20, 3, 58, 3))
sketch1.addConstraint(Sketcher.Constraint("Horizontal", 18, 3, 60, 3))
sketch1.addConstraint(Sketcher.Constraint("Horizontal", 16, 3, 62, 3))
sketch1.addConstraint(Sketcher.Constraint("Horizontal", 1, 2, 4, 1))
sketch1.addConstraint(Sketcher.Constraint("Vertical", 18, 3, 24, 3))
sketch1.addConstraint(Sketcher.Constraint("Vertical", 14, 3, 28, 3))
sketch1.addConstraint(Sketcher.Constraint("Vertical", 10, 3, 32, 3))
sketch1.addConstraint(Sketcher.Constraint("Vertical", 6, 3, 36, 3))
sketch1.addConstraint(Sketcher.Constraint("Vertical", 4, 3, 38, 3))
sketch1.addConstraint(Sketcher.Constraint("Vertical", 2, 3, 40, 3))
sketch1.addConstraint(Sketcher.Constraint("Vertical", 50, 3, 64, 3))
sketch1.addConstraint(Sketcher.Constraint("Vertical", 46, 3, 68, 3))
sketch1.addConstraint(Sketcher.Constraint("Equal", 35, 43))
sketch1.addConstraint(Sketcher.Constraint("Equal", 31, 47))
sketch1.addConstraint(Sketcher.Constraint("Equal", 27, 51))
sketch1.addConstraint(Sketcher.Constraint("Equal", 17, 25))
sketch1.addConstraint(Sketcher.Constraint("Equal", 13, 29))
sketch1.addConstraint(Sketcher.Constraint("Equal", 9, 33))
sketch1.addConstraint(Sketcher.Constraint("DistanceY", 30, 2, -1, 1, Q("1 in")))
sketch1.addConstraint(Sketcher.Constraint("Radius", 2, Q("0.125 in")))
sketch1.addConstraint(Sketcher.Constraint("Radius", 10, Q("0.0439 in")))
sketch1.addConstraint(Sketcher.Constraint("Angle", 1, Q("-134.3894 deg")))
sketch1.addConstraint(Sketcher.Constraint("Radius", 0, Q("0.6684 mm")))
sketch1.addConstraint(Sketcher.Constraint("Radius", 8, Q("1.0026 mm")))
sketch1.addConstraint(Sketcher.Constraint("Radius", 12, Q("2.0053 mm")))
sketch1.addConstraint(Sketcher.Constraint("DistanceX", 11, 2, 11, 1, Q("0.2719 in")))
sketch1.addConstraint(Sketcher.Constraint("DistanceX", 18, 3, -1, 1, Q("3.389 in")))
sketch1.addConstraint(Sketcher.Constraint("DistanceX", 3, 2, 3, 1, Q("2.328 mm")))
sketch1.addConstraint(Sketcher.Constraint("DistanceX", 7, 1, 7, 2, Q("2.6347 mm")))
sketch1.addConstraint(Sketcher.Constraint("DistanceX", 15, 1, 15, 2, Q("0.611 mm")))
sketch1.addConstraint(Sketcher.Constraint("DistanceY", 9, 1, 9, 2, Q("0.7233 mm")))
sketch1.addConstraint(Sketcher.Constraint("DistanceY", 13, 2, 13, 1, Q("6.739 mm")))
sketch1.addConstraint(Sketcher.Constraint("DistanceY", 17, 1, 17, 2, Q("2.5066 mm")))
sketch1.addConstraint(Sketcher.Constraint("DistanceY", 21, 2, 21, 1, Q("3.027 mm")))
sketch1.addConstraint(Sketcher.Constraint("DistanceX", 2, 3, -1, 1, Q("2.9879 in")))
pad1 = doc.addObject("PartDesign::Pad", "Pad")
body.addObject(pad1)
pad1.Profile = sketch1
pad1.Length = Q("17 in")

doc.recompute()
